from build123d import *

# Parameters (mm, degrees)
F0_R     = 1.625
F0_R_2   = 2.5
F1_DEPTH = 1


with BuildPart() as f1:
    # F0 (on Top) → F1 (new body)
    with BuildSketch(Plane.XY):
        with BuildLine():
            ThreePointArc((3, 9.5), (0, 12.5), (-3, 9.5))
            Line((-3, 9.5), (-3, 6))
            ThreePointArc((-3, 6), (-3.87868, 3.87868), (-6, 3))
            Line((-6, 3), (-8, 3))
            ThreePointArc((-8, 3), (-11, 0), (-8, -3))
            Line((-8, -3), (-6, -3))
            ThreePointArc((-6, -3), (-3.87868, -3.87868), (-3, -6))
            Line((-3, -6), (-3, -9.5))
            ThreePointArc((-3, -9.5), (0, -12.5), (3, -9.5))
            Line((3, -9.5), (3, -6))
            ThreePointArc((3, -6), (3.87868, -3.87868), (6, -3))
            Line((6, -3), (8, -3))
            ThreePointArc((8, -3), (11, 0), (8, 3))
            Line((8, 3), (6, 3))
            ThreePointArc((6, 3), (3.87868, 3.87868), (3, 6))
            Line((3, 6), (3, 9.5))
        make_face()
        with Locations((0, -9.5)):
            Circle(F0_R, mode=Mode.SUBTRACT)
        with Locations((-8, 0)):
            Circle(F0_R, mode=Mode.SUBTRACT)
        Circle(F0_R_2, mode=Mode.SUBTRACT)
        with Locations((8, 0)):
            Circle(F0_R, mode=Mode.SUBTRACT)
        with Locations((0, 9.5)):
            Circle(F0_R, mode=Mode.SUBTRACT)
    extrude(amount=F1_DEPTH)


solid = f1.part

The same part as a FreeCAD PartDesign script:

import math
import FreeCAD as App
import Part
import Sketcher
from FreeCAD import Vector

doc = App.newDocument("Part")
body = doc.addObject("PartDesign::Body", "Body")

# Sketch on XY plane
sketch1 = doc.addObject("Sketcher::SketchObject", "Sketch")
body.addObject(sketch1)
sketch1.AttachmentSupport = (doc.XY_Plane, [""])
sketch1.MapMode = "FlatFace"
sketch1.addGeometry(Part.ArcOfCircle(Part.Circle(Vector(0, 9.5, 0), Vector(0, 0, 1), 3), math.radians(0), math.radians(180)), False)
sketch1.addGeometry(Part.LineSegment(Vector(-3, 9.5, 0), Vector(-3, 6, 0)), False)
sketch1.addGeometry(Part.ArcOfCircle(Part.Circle(Vector(-6, 6, 0), Vector(0, 0, 1), 3), math.radians(-90), math.radians(0)), False)
sketch1.addGeometry(Part.LineSegment(Vector(-6, 3, 0), Vector(-8, 3, 0)), False)
sketch1.addGeometry(Part.ArcOfCircle(Part.Circle(Vector(-8, 0, 0), Vector(0, 0, 1), 3), math.radians(90), math.radians(270)), False)
sketch1.addGeometry(Part.LineSegment(Vector(-8, -3, 0), Vector(-6, -3, 0)), False)
sketch1.addGeometry(Part.ArcOfCircle(Part.Circle(Vector(-6, -6, 0), Vector(0, 0, 1), 3), math.radians(0), math.radians(90)), False)
sketch1.addGeometry(Part.LineSegment(Vector(-3, -6, 0), Vector(-3, -9.5, 0)), False)
sketch1.addGeometry(Part.ArcOfCircle(Part.Circle(Vector(0, -9.5, 0), Vector(0, 0, 1), 3), math.radians(180), math.radians(360)), False)
sketch1.addGeometry(Part.LineSegment(Vector(3, -9.5, 0), Vector(3, -6, 0)), False)
sketch1.addGeometry(Part.ArcOfCircle(Part.Circle(Vector(6, -6, 0), Vector(0, 0, 1), 3), math.radians(90), math.radians(180)), False)
sketch1.addGeometry(Part.LineSegment(Vector(6, -3, 0), Vector(8, -3, 0)), False)
sketch1.addGeometry(Part.ArcOfCircle(Part.Circle(Vector(8, 0, 0), Vector(0, 0, 1), 3), math.radians(-90), math.radians(90)), False)
sketch1.addGeometry(Part.LineSegment(Vector(8, 3, 0), Vector(6, 3, 0)), False)
sketch1.addGeometry(Part.ArcOfCircle(Part.Circle(Vector(6, 6, 0), Vector(0, 0, 1), 3), math.radians(-180), math.radians(-90)), False)
sketch1.addGeometry(Part.LineSegment(Vector(3, 6, 0), Vector(3, 9.5, 0)), False)
sketch1.addGeometry(Part.Circle(Vector(0, -9.5, 0), Vector(0, 0, 1), 1.6), False)
sketch1.addGeometry(Part.Circle(Vector(-8, 0, 0), Vector(0, 0, 1), 1.6), False)
sketch1.addGeometry(Part.Circle(Vector(0, 0, 0), Vector(0, 0, 1), 2.5), False)
sketch1.addGeometry(Part.Circle(Vector(8, 0, 0), Vector(0, 0, 1), 1.6), False)
sketch1.addGeometry(Part.Circle(Vector(0, 9.5, 0), Vector(0, 0, 1), 1.6), False)
sketch1.addConstraint(Sketcher.Constraint("Tangent", 0, 2, 1, 1))
sketch1.addConstraint(Sketcher.Constraint("Tangent", 1, 2, 2, 2))
sketch1.addConstraint(Sketcher.Constraint("Tangent", 2, 1, 3, 1))
sketch1.addConstraint(Sketcher.Constraint("Tangent", 3, 2, 4, 1))
sketch1.addConstraint(Sketcher.Constraint("Tangent", 4, 2, 5, 1))
sketch1.addConstraint(Sketcher.Constraint("Tangent", 5, 2, 6, 2))
sketch1.addConstraint(Sketcher.Constraint("Tangent", 6, 1, 7, 1))
sketch1.addConstraint(Sketcher.Constraint("Tangent", 7, 2, 8, 1))
sketch1.addConstraint(Sketcher.Constraint("Tangent", 8, 2, 9, 1))
sketch1.addConstraint(Sketcher.Constraint("Tangent", 9, 2, 10, 2))
sketch1.addConstraint(Sketcher.Constraint("Tangent", 10, 1, 11, 1))
sketch1.addConstraint(Sketcher.Constraint("Tangent", 11, 2, 12, 1))
sketch1.addConstraint(Sketcher.Constraint("Tangent", 12, 2, 13, 1))
sketch1.addConstraint(Sketcher.Constraint("Tangent", 13, 2, 14, 2))
sketch1.addConstraint(Sketcher.Constraint("Tangent", 14, 1, 15, 1))
sketch1.addConstraint(Sketcher.Constraint("Tangent", 15, 2, 0, 1))
sketch1.addConstraint(Sketcher.Constraint("Vertical", 1))
sketch1.addConstraint(Sketcher.Constraint("Horizontal", 3))
sketch1.addConstraint(Sketcher.Constraint("Horizontal", 5))
sketch1.addConstraint(Sketcher.Constraint("Vertical", 7))
sketch1.addConstraint(Sketcher.Constraint("Vertical", 9))
sketch1.addConstraint(Sketcher.Constraint("Horizontal", 11))
sketch1.addConstraint(Sketcher.Constraint("Horizontal", 13))
sketch1.addConstraint(Sketcher.Constraint("Vertical", 15))
sketch1.addConstraint(Sketcher.Constraint("Coincident", 18, 3, -1, 1))
sketch1.addConstraint(Sketcher.Constraint("Coincident", 16, 3, 8, 3))
sketch1.addConstraint(Sketcher.Constraint("Coincident", 17, 3, 4, 3))
sketch1.addConstraint(Sketcher.Constraint("Coincident", 19, 3, 12, 3))
sketch1.addConstraint(Sketcher.Constraint("Coincident", 20, 3, 0, 3))
sketch1.addConstraint(Sketcher.Constraint("Equal", 0, 2))
sketch1.addConstraint(Sketcher.Constraint("Equal", 2, 4))
sketch1.addConstraint(Sketcher.Constraint("Equal", 4, 6))
sketch1.addConstraint(Sketcher.Constraint("Equal", 6, 8))
sketch1.addConstraint(Sketcher.Constraint("Equal", 8, 10))
sketch1.addConstraint(Sketcher.Constraint("Equal", 10, 12))
sketch1.addConstraint(Sketcher.Constraint("Equal", 12, 14))
sketch1.addConstraint(Sketcher.Constraint("Equal", 16, 17))
sketch1.addConstraint(Sketcher.Constraint("Equal", 17, 19))
sketch1.addConstraint(Sketcher.Constraint("Equal", 19, 20))
sketch1.addConstraint(Sketcher.Constraint("Symmetric", 0, 3, 8, 3, -1, 1))
sketch1.addConstraint(Sketcher.Constraint("Symmetric", 4, 3, 12, 3, -1, 1))
sketch1.addConstraint(Sketcher.Constraint("Symmetric", 6, 3, 10, 3, -2))
sketch1.addConstraint(Sketcher.Constraint("Diameter", 18, 5.0))
sketch1.addConstraint(Sketcher.Constraint("Radius", 0, 3.0))
sketch1.addConstraint(Sketcher.Constraint("Diameter", 16, 3.25))
sketch1.addConstraint(Sketcher.Constraint("DistanceX", 3, 2, 3, 1, 2.0))
sketch1.addConstraint(Sketcher.Constraint("DistanceY", 1, 2, 1, 1, 3.5))
pad1 = doc.addObject("PartDesign::Pad", "Pad")
body.addObject(pad1)
pad1.Profile = sketch1
pad1.Length = 1

doc.recompute()
